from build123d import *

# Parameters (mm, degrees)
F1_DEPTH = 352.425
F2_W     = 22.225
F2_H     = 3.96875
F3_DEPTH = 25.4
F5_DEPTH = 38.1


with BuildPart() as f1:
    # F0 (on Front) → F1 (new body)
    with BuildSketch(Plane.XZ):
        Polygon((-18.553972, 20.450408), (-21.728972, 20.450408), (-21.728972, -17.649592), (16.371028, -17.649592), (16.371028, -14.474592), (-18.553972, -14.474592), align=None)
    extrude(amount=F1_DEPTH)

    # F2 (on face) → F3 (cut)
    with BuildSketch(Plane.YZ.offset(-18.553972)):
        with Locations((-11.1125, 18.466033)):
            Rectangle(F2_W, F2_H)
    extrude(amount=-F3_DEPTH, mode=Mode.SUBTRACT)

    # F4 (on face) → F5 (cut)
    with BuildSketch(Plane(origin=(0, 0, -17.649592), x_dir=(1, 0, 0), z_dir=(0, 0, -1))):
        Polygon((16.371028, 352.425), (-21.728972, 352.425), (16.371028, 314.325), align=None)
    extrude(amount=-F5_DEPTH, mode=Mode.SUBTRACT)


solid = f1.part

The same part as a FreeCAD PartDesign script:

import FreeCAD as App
import Part
import Sketcher
Q = App.Units.Quantity


def add_polygon(sketch, points):
    """Adds a closed chain of lines whose ends are joined by coincident constraints."""
    first, n = sketch.GeometryCount, len(points)
    for a, b in zip(points, points[1:] + points[:1]):
        sketch.addGeometry(Part.LineSegment(App.Vector(*a, 0), App.Vector(*b, 0)), False)
    for i in range(n):
        sketch.addConstraint(Sketcher.Constraint("Coincident", first + i, 2, first + (i + 1) % n, 1))

doc = App.newDocument("Part")
params = doc.addObject("Spreadsheet::Sheet", "Params")
for row, (alias, value) in enumerate([
    ("sketch1_width", "1.5 in"),
    ("sketch1_width2", "0.125 in"),
    ("pad1_length", "13.875 in"),
    ("sketch2_width", "0.875 in"),
    ("sketch2_height", "0.15625 in"),
    ("pocket1_length", "1 in"),
    ("sketch3_width", "1.5 in"),
    ("pocket2_length", "1.5 in"),
], start=1):
    params.set(f"A{row}", alias)
    params.set(f"B{row}", "=" + value)
    params.setAlias(f"B{row}", alias)

body = doc.addObject("PartDesign::Body", "Body")

sketch1 = body.newObject("Sketcher::SketchObject", "Sketch")
sketch1.AttachmentSupport = (doc.getObject("XZ_Plane"), [""])
sketch1.MapMode = "FlatFace"
add_polygon(sketch1, [(-18.6, 20.5), (-21.7, 20.5), (-21.7, -17.6), (16.4, -17.6), (16.4, -14.5), (-18.6, -14.5)])
sketch1.addConstraint([
    Sketcher.Constraint("Horizontal", 0),
    Sketcher.Constraint("Vertical", 1),
    Sketcher.Constraint("Horizontal", 2),
    Sketcher.Constraint("Vertical", 3),
    Sketcher.Constraint("Horizontal", 4),
    Sketcher.Constraint("Vertical", 5),
    Sketcher.Constraint("Equal", 2, 1),
    Sketcher.Constraint("Equal", 0, 3),
    Sketcher.Constraint("DistanceX", 2, 1, 2, 2, Q("1.5 in")),
    Sketcher.Constraint("DistanceX", 0, 2, 0, 1, Q("0.125 in")),
    Sketcher.Constraint("DistanceX", 0, 2, -1, 1, Q("21.728972 mm")),
    Sketcher.Constraint("DistanceY", 1, 2, -1, 1, Q("17.649592 mm")),
])
sketch1.setExpression("Constraints[14]", "Params.sketch1_width")
sketch1.setExpression("Constraints[15]", "Params.sketch1_width2")
pad1 = body.newObject("PartDesign::Pad", "Pad")
pad1.Profile = sketch1
pad1.setExpression("Length", "Params.pad1_length")

sketch2 = body.newObject("Sketcher::SketchObject", "Sketch001")
sketch2.AttachmentSupport = (doc.getObject("YZ_Plane"), [""])
sketch2.MapMode = "FlatFace"
sketch2.AttachmentOffset = App.Placement(App.Vector(0, 0, -18.553972), App.Rotation())
add_polygon(sketch2, [(-22.2, 20.5), (-22.2, 16.5), (0, 16.5), (0, 20.5)])
sketch2.addConstraint([
    Sketcher.Constraint("Vertical", 0),
    Sketcher.Constraint("Horizontal", 1),
    Sketcher.Constraint("Vertical", 2),
    Sketcher.Constraint("Horizontal", 3),
    Sketcher.Constraint("PointOnObject", 1, 2, -2),
    Sketcher.Constraint("DistanceX", 1, 1, 1, 2, Q("0.875 in")),
    Sketcher.Constraint("DistanceY", 0, 2, 0, 1, Q("0.15625 in")),
    Sketcher.Constraint("DistanceY", -1, 1, 0, 2, Q("16.481658 mm")),
])
sketch2.setExpression("Constraints[9]", "Params.sketch2_width")
sketch2.setExpression("Constraints[10]", "Params.sketch2_height")
pocket1 = body.newObject("PartDesign::Pocket", "Pocket")
pocket1.Profile = sketch2
pocket1.setExpression("Length", "Params.pocket1_length")

sketch3 = body.newObject("Sketcher::SketchObject", "Sketch002")
sketch3.AttachmentSupport = (doc.getObject("XY_Plane"), [""])
sketch3.MapMode = "FlatFace"
sketch3.AttachmentOffset = App.Placement(App.Vector(0, 0, -17.649592), App.Rotation())
add_polygon(sketch3, [(16, -352), (-22, -352), (16, -314)])
sketch3.addConstraint([
    Sketcher.Constraint("Horizontal", 0),
    Sketcher.Constraint("Vertical", 2),
    Sketcher.Constraint("Equal", 0, 2),
    Sketcher.Constraint("DistanceX", 0, 2, 0, 1, Q("1.5 in")),
    Sketcher.Constraint("DistanceY", 0, 2, -1, 1, Q("13.875 in")),
    Sketcher.Constraint("DistanceX", 0, 2, -1, 1, Q("21.728972 mm")),
])
sketch3.setExpression("Constraints[6]", "Params.sketch3_width")
pocket2 = body.newObject("PartDesign::Pocket", "Pocket001")
pocket2.Profile = sketch3
pocket2.setExpression("Length", "Params.pocket2_length")
pocket2.Reversed = True

doc.recompute()
